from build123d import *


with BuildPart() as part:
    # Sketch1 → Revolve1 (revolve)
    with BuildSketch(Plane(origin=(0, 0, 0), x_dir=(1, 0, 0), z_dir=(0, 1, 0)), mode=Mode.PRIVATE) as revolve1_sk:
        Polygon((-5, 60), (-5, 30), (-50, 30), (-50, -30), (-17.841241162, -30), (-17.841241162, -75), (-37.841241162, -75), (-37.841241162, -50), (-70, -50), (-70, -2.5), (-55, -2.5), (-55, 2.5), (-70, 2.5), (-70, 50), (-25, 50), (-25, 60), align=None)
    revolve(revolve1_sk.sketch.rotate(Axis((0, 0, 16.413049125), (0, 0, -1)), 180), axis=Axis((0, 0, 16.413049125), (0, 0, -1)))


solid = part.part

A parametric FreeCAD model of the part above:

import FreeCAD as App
import Part
import Sketcher
Q = App.Units.Quantity


def add_polygon(sketch, points):
    """Adds a closed chain of lines whose ends are joined by coincident constraints."""
    first, n = sketch.GeometryCount, len(points)
    for a, b in zip(points, points[1:] + points[:1]):
        sketch.addGeometry(Part.LineSegment(App.Vector(*a, 0), App.Vector(*b, 0)), False)
    for i in range(n):
        sketch.addConstraint(Sketcher.Constraint("Coincident", first + i, 2, first + (i + 1) % n, 1))

doc = App.newDocument("Part")
body = doc.addObject("PartDesign::Body", "Body")

# Sketch on XZ plane
sketch1 = body.newObject("Sketcher::SketchObject", "Sketch")
sketch1.AttachmentSupport = (doc.getObject("XZ_Plane"), [""])
sketch1.MapMode = "FlatFace"
add_polygon(sketch1, [(-5, -30), (-5, -60), (-25, -60), (-25, -50), (-70, -50), (-70, -2), (-55, -2), (-55, 2), (-70, 2), (-70, 50), (-38, 50), (-38, 75), (-18, 75), (-18, 30), (-50, 30), (-50, -30)])  # lines 0-15
sketch1.addConstraint(Sketcher.Constraint("Vertical", 0))
sketch1.addConstraint(Sketcher.Constraint("Horizontal", 1))
sketch1.addConstraint(Sketcher.Constraint("Vertical", 2))
sketch1.addConstraint(Sketcher.Constraint("Horizontal", 3))
sketch1.addConstraint(Sketcher.Constraint("Vertical", 4))
sketch1.addConstraint(Sketcher.Constraint("Horizontal", 5))
sketch1.addConstraint(Sketcher.Constraint("Vertical", 6))
sketch1.addConstraint(Sketcher.Constraint("Horizontal", 7))
sketch1.addConstraint(Sketcher.Constraint("Vertical", 8))
sketch1.addConstraint(Sketcher.Constraint("Horizontal", 9))
sketch1.addConstraint(Sketcher.Constraint("Vertical", 10))
sketch1.addConstraint(Sketcher.Constraint("Horizontal", 11))
sketch1.addConstraint(Sketcher.Constraint("Vertical", 12))
sketch1.addConstraint(Sketcher.Constraint("Horizontal", 13))
sketch1.addConstraint(Sketcher.Constraint("Vertical", 14))
sketch1.addConstraint(Sketcher.Constraint("Horizontal", 15))
sketch1.addConstraint(Sketcher.Constraint("Symmetric", 4, 2, 7, 2, -1))
sketch1.addConstraint(Sketcher.Constraint("Equal", 1, 11))
sketch1.addConstraint(Sketcher.Constraint("Equal", 9, 13))
sketch1.addConstraint(Sketcher.Constraint("Equal", 4, 8))
sketch1.addConstraint(Sketcher.Constraint("Equal", 15, 12))
sketch1.addConstraint(Sketcher.Constraint("DistanceX", 1, 2, 1, 1, Q("20 mm")))
sketch1.addConstraint(Sketcher.Constraint("DistanceX", 3, 2, 3, 1, Q("45 mm")))
sketch1.addConstraint(Sketcher.Constraint("DistanceX", 5, 1, 5, 2, Q("15 mm")))
sketch1.addConstraint(Sketcher.Constraint("DistanceY", 0, 2, 0, 1, Q("30 mm")))
sketch1.addConstraint(Sketcher.Constraint("DistanceY", 2, 1, 2, 2, Q("10 mm")))
sketch1.addConstraint(Sketcher.Constraint("DistanceY", 6, 1, 6, 2, Q("5 mm")))
sketch1.addConstraint(Sketcher.Constraint("DistanceY", 10, 1, 10, 2, Q("25 mm")))
sketch1.addConstraint(Sketcher.Constraint("DistanceY", 14, 2, 14, 1, Q("60 mm")))
sketch1.addConstraint(Sketcher.Constraint("DistanceX", 0, 2, -1, 1, Q("5 mm")))
sketch1.addConstraint(Sketcher.Constraint("DistanceX", 9, 1, 9, 2, Q("32.158759 mm")))
revolution = body.newObject("PartDesign::Revolution", "Revolution")
revolution.Profile = sketch1
revolution.ReferenceAxis = (sketch1, ["V_Axis"])
revolution.Angle = 360

doc.recompute()
